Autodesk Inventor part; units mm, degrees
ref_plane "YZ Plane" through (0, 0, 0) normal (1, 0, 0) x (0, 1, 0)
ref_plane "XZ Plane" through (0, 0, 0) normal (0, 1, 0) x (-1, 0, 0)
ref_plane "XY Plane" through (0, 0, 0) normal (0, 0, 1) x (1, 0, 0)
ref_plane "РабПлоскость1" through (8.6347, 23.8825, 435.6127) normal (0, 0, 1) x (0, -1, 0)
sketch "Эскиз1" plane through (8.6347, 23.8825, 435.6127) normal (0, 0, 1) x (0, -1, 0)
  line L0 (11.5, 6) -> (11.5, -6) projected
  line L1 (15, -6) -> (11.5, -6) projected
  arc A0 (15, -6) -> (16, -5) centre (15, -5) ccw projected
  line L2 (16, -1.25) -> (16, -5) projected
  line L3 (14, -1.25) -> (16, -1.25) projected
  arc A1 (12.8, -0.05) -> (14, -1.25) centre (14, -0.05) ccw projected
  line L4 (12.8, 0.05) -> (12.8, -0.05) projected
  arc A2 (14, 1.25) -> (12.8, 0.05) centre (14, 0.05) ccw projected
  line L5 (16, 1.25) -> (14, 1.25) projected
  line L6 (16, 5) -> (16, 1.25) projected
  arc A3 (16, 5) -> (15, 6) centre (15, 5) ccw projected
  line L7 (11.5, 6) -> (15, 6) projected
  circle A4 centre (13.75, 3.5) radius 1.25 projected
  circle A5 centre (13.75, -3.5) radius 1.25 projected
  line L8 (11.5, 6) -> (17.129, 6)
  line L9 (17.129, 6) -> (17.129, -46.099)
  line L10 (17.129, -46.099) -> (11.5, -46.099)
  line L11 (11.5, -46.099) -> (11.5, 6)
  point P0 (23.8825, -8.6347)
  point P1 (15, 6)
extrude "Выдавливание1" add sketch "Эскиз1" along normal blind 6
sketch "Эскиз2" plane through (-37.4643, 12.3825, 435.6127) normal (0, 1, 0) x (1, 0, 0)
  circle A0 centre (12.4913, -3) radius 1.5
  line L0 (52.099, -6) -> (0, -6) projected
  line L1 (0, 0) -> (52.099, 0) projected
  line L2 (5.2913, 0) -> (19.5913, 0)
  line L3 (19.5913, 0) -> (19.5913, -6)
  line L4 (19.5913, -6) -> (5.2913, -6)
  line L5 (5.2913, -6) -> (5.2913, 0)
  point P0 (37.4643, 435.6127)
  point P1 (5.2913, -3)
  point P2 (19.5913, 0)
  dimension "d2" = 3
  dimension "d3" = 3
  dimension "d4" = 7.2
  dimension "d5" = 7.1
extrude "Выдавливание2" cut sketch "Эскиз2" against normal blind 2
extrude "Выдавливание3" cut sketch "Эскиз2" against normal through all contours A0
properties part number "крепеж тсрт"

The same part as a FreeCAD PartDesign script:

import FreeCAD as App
import Part
import Sketcher

V = App.Vector

doc = App.newDocument("Part")
body = doc.addObject("PartDesign::Body", "Body")

# Sketch on XY plane
sketch1 = body.newObject("Sketcher::SketchObject", "Sketch")
sketch1.AttachmentSupport = (doc.getObject("XY_Plane"), [""])
sketch1.MapMode = "FlatFace"
sketch1.AttachmentOffset = App.Placement(V(0, 0, 435.6127), App.Rotation())
sketch1.addGeometry([
    Part.LineSegment(V(14.6347, 12.3825, 0), V(-37.4643, 12.3825, 0)),  # 0
    Part.LineSegment(V(-37.4643, 12.3825, 0), V(-37.4643, 6.7535, 0)),  # 1
    Part.LineSegment(V(-37.4643, 6.7535, 0), V(14.6347, 6.7535, 0)),  # 2
    Part.LineSegment(V(14.6347, 6.7535, 0), V(14.6347, 12.3825, 0)),  # 3
    Part.Circle(V(5.1347, 10.1325, 0), V(0, 0, 1), 1.25),  # 4
    Part.Circle(V(12.1347, 10.1325, 0), V(0, 0, 1), 1.25),  # 5
], False)
sketch1.addConstraint([
    Sketcher.Constraint("Coincident", 0, 2, 1, 1),
    Sketcher.Constraint("Coincident", 1, 2, 2, 1),
    Sketcher.Constraint("Coincident", 2, 2, 3, 1),
    Sketcher.Constraint("Coincident", 3, 2, 0, 1),
    Sketcher.Constraint("Horizontal", 0),
    Sketcher.Constraint("Vertical", 1),
    Sketcher.Constraint("Horizontal", 2),
    Sketcher.Constraint("Vertical", 3),
    Sketcher.Constraint("Equal", 4, 5),
    Sketcher.Constraint("Horizontal", 4, 3, 5, 3),
    Sketcher.Constraint("Diameter", 4, 2.5),
    Sketcher.Constraint("DistanceX", 4, 3, 5, 3, 7.0),
    Sketcher.Constraint("DistanceX", 5, 3, 2, 2, 2.5),
    Sketcher.Constraint("DistanceX", 0, 2, 0, 1, 52.099),
    Sketcher.Constraint("DistanceY", 1, 2, 1, 1, 5.629),
    Sketcher.Constraint("DistanceY", 4, 3, 0, 2, 2.25),
    Sketcher.Constraint("DistanceX", -1, 1, 4, 3, 5.1347),
    Sketcher.Constraint("DistanceY", -1, 1, 4, 3, 10.1325),
])
pad1 = body.newObject("PartDesign::Pad", "Pad")
pad1.Profile = sketch1
pad1.Length = 6

# Sketch on XZ plane
sketch2 = body.newObject("Sketcher::SketchObject", "Sketch001")
sketch2.AttachmentSupport = (doc.getObject("XZ_Plane"), [""])
sketch2.MapMode = "FlatFace"
sketch2.AttachmentOffset = App.Placement(V(0, 0, -12.3825), App.Rotation())
sketch2.addGeometry([
    Part.LineSegment(V(-32.173, 441.6127, 0), V(-17.873, 441.6127, 0)),  # 0
    Part.LineSegment(V(-17.873, 441.6127, 0), V(-17.873, 435.6127, 0)),  # 1
    Part.LineSegment(V(-17.873, 435.6127, 0), V(-32.173, 435.6127, 0)),  # 2
    Part.LineSegment(V(-32.173, 435.6127, 0), V(-32.173, 441.6127, 0)),  # 3
    Part.Circle(V(-24.973, 438.6127, 0), V(0, 0, 1), 1.5),  # 4
], False)
sketch2.addConstraint([
    Sketcher.Constraint("Coincident", 0, 2, 1, 1),
    Sketcher.Constraint("Coincident", 1, 2, 2, 1),
    Sketcher.Constraint("Coincident", 2, 2, 3, 1),
    Sketcher.Constraint("Coincident", 3, 2, 0, 1),
    Sketcher.Constraint("Horizontal", 0),
    Sketcher.Constraint("Vertical", 1),
    Sketcher.Constraint("Horizontal", 2),
    Sketcher.Constraint("Vertical", 3),
    Sketcher.Constraint("Diameter", 4, 3.0),
    Sketcher.Constraint("DistanceY", 4, 3, 0, 2, 3.0),
    Sketcher.Constraint("DistanceY", 1, 2, 4, 3, 3.0),
    Sketcher.Constraint("DistanceX", 4, 3, 0, 2, 7.1),
    Sketcher.Constraint("DistanceX", 2, 2, 4, 3, 7.2),
    Sketcher.Constraint("DistanceX", 4, 3, -1, 1, 24.973),
    Sketcher.Constraint("DistanceY", -1, 1, 4, 3, 438.6127),
])
pocket1 = body.newObject("PartDesign::Pocket", "Pocket")
pocket1.Profile = sketch2
pocket1.Length = 2
pocket1.Reversed = True

# Sketch on XZ plane
sketch3 = body.newObject("Sketcher::SketchObject", "Sketch002")
sketch3.AttachmentSupport = (doc.getObject("XZ_Plane"), [""])
sketch3.MapMode = "FlatFace"
sketch3.AttachmentOffset = App.Placement(V(0, 0, -12.3825), App.Rotation())
sketch3.addGeometry(Part.Circle(V(-24.973, 438.6127, 0), V(0, 0, 1), 1.5), False)
sketch3.addConstraint([
    Sketcher.Constraint("Diameter", 0, 3.0),
    Sketcher.Constraint("DistanceX", 0, 3, -1, 1, 24.973),
    Sketcher.Constraint("DistanceY", -1, 1, 0, 3, 438.6127),
])
pocket2 = body.newObject("PartDesign::Pocket", "Pocket001")
pocket2.Profile = sketch3
pocket2.Type = "ThroughAll"
pocket2.Reversed = True

doc.recompute()
